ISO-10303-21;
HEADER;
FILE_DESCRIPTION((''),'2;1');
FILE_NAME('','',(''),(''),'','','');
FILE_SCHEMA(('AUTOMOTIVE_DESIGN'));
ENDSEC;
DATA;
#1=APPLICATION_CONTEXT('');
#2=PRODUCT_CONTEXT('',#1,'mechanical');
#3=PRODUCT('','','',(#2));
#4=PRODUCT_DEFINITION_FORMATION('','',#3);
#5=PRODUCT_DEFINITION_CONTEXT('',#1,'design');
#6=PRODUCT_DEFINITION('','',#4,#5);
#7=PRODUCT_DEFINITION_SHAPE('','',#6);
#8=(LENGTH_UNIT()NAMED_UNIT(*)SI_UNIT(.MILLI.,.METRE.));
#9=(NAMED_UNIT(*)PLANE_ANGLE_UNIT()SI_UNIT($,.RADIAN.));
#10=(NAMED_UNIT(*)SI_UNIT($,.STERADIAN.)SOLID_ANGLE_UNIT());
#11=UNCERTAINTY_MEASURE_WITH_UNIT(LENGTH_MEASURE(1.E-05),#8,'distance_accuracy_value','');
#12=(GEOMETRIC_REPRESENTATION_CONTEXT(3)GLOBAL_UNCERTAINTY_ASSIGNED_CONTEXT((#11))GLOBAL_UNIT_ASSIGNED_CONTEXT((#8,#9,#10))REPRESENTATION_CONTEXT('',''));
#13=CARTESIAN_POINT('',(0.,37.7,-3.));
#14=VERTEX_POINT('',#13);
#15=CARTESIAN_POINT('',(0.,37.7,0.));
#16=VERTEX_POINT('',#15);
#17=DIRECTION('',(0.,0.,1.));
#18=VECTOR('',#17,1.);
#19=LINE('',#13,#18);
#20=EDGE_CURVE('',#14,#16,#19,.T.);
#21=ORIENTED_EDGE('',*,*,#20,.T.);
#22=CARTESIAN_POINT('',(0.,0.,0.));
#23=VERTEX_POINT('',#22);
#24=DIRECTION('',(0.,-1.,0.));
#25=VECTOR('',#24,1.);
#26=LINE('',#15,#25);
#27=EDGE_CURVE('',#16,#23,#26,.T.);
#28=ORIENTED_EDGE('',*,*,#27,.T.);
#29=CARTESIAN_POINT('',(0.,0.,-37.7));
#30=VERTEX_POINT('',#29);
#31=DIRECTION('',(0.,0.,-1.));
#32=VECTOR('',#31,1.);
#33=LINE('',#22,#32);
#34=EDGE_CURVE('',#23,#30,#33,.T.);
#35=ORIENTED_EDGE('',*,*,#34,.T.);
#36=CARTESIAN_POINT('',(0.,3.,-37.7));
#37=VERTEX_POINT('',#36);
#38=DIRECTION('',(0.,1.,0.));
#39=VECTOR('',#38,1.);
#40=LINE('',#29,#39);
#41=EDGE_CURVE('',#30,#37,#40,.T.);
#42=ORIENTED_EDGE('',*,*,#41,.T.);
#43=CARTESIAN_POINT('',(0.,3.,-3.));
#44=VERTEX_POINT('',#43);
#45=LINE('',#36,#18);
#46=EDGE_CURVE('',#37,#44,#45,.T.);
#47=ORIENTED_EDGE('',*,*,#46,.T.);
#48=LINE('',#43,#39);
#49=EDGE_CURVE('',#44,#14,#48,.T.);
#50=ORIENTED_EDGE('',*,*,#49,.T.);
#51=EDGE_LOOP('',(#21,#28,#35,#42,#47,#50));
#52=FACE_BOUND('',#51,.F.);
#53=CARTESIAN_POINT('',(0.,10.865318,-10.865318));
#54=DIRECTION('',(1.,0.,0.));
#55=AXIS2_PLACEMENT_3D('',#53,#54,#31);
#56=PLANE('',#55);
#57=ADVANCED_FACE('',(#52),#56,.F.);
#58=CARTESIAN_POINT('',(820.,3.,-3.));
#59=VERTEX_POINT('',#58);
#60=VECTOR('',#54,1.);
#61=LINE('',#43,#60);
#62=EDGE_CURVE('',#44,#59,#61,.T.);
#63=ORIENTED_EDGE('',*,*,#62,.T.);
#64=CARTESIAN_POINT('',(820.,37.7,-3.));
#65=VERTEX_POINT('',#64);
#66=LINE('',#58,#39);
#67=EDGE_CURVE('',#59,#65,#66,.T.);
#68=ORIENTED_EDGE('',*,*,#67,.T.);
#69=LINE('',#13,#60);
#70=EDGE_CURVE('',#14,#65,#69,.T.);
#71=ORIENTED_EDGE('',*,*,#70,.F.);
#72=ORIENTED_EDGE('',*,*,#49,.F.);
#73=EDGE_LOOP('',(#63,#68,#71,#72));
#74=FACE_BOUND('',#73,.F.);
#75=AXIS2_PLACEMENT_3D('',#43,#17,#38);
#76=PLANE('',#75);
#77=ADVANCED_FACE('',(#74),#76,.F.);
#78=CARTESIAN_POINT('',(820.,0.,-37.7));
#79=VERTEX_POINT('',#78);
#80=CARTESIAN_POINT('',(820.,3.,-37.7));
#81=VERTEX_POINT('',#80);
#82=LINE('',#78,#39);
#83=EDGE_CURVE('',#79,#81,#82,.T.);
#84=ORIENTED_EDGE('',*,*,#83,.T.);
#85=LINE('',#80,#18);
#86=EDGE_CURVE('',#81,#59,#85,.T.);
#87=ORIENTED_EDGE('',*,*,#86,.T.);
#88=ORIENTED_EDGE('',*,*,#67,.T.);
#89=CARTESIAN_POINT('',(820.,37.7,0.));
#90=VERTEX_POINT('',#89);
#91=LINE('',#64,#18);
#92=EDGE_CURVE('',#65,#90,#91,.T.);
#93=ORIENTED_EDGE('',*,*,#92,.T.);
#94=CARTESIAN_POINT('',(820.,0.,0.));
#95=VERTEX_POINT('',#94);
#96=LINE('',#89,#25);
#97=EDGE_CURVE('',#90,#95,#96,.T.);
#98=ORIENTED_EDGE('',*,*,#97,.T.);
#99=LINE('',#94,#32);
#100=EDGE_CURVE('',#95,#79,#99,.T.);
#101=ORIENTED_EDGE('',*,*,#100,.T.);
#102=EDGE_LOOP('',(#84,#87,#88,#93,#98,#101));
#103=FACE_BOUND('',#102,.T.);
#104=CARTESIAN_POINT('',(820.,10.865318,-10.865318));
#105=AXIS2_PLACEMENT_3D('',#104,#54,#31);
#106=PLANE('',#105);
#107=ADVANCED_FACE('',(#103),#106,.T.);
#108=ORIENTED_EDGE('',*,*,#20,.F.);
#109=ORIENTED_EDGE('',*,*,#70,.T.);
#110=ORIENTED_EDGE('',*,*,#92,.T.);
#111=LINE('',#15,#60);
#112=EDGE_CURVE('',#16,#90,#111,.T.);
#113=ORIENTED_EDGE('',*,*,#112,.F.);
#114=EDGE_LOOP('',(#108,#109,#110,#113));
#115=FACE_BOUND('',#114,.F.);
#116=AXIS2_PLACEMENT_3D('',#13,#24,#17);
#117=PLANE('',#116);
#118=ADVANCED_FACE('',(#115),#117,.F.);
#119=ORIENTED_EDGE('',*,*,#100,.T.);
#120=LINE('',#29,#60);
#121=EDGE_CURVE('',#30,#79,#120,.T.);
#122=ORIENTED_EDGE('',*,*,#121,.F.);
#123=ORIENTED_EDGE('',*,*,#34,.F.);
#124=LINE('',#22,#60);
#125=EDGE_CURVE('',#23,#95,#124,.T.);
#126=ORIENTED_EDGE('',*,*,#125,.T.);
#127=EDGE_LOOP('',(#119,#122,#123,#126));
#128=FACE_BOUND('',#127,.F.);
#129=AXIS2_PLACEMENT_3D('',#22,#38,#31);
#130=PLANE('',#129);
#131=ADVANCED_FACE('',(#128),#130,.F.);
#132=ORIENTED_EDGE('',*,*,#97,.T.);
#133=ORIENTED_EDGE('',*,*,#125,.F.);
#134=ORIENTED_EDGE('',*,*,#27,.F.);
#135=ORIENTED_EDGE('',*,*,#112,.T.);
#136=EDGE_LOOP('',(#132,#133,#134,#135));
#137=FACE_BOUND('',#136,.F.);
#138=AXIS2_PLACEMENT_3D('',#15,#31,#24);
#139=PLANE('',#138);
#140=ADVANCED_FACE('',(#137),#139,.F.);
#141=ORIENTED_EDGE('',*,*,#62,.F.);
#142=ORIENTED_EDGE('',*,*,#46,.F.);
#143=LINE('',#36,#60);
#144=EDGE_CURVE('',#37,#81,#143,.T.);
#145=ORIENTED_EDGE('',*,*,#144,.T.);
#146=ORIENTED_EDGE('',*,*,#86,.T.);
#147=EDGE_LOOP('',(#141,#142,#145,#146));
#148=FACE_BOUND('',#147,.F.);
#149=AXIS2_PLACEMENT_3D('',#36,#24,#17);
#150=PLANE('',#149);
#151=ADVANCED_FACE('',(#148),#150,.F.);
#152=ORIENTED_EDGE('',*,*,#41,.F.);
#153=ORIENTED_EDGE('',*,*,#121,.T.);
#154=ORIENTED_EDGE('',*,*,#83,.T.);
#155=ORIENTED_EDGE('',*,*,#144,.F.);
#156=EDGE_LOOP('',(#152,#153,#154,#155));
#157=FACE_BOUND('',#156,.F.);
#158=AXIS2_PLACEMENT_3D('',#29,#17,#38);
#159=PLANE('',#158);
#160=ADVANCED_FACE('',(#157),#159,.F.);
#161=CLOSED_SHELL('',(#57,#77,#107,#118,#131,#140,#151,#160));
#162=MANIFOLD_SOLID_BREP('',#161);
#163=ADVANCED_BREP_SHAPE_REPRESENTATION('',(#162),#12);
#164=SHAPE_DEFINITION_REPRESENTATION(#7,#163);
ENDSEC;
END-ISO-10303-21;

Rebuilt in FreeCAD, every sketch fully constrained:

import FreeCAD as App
import Part
import Sketcher

doc = App.newDocument("Part")
body = doc.addObject("PartDesign::Body", "Body")

# Sketch on YZ plane
sketch1 = body.newObject("Sketcher::SketchObject", "Sketch")
sketch1.AttachmentSupport = (doc.getObject("YZ_Plane"), [""])
sketch1.MapMode = "FlatFace"
sketch1.addGeometry(Part.LineSegment(App.Vector(37.7, 0, 0), App.Vector(0, 0, 0)), False)
sketch1.addGeometry(Part.LineSegment(App.Vector(0, 0, 0), App.Vector(0, -37.7, 0)), False)
sketch1.addGeometry(Part.LineSegment(App.Vector(0, -37.7, 0), App.Vector(3, -37.7, 0)), False)
sketch1.addGeometry(Part.LineSegment(App.Vector(3, -37.7, 0), App.Vector(3, -3, 0)), False)
sketch1.addGeometry(Part.LineSegment(App.Vector(3, -3, 0), App.Vector(37.7, -3, 0)), False)
sketch1.addGeometry(Part.LineSegment(App.Vector(37.7, -3, 0), App.Vector(37.7, 0, 0)), False)
sketch1.addConstraint(Sketcher.Constraint("Coincident", 0, 2, 1, 1))
sketch1.addConstraint(Sketcher.Constraint("Coincident", 1, 2, 2, 1))
sketch1.addConstraint(Sketcher.Constraint("Coincident", 2, 2, 3, 1))
sketch1.addConstraint(Sketcher.Constraint("Coincident", 3, 2, 4, 1))
sketch1.addConstraint(Sketcher.Constraint("Coincident", 4, 2, 5, 1))
sketch1.addConstraint(Sketcher.Constraint("Coincident", 5, 2, 0, 1))
sketch1.addConstraint(Sketcher.Constraint("Horizontal", 0))
sketch1.addConstraint(Sketcher.Constraint("Vertical", 1))
sketch1.addConstraint(Sketcher.Constraint("Horizontal", 2))
sketch1.addConstraint(Sketcher.Constraint("Vertical", 3))
sketch1.addConstraint(Sketcher.Constraint("Horizontal", 4))
sketch1.addConstraint(Sketcher.Constraint("Vertical", 5))
sketch1.addConstraint(Sketcher.Constraint("Coincident", 0, 2, -1, 1))
sketch1.addConstraint(Sketcher.Constraint("Equal", 0, 1))
sketch1.addConstraint(Sketcher.Constraint("Equal", 4, 3))
sketch1.addConstraint(Sketcher.Constraint("DistanceX", 2, 1, 2, 2, 3.0))
sketch1.addConstraint(Sketcher.Constraint("DistanceX", 0, 2, 0, 1, 37.7))
pad1 = body.newObject("PartDesign::Pad", "Pad")
pad1.Profile = sketch1
pad1.Length = 820

doc.recompute()
